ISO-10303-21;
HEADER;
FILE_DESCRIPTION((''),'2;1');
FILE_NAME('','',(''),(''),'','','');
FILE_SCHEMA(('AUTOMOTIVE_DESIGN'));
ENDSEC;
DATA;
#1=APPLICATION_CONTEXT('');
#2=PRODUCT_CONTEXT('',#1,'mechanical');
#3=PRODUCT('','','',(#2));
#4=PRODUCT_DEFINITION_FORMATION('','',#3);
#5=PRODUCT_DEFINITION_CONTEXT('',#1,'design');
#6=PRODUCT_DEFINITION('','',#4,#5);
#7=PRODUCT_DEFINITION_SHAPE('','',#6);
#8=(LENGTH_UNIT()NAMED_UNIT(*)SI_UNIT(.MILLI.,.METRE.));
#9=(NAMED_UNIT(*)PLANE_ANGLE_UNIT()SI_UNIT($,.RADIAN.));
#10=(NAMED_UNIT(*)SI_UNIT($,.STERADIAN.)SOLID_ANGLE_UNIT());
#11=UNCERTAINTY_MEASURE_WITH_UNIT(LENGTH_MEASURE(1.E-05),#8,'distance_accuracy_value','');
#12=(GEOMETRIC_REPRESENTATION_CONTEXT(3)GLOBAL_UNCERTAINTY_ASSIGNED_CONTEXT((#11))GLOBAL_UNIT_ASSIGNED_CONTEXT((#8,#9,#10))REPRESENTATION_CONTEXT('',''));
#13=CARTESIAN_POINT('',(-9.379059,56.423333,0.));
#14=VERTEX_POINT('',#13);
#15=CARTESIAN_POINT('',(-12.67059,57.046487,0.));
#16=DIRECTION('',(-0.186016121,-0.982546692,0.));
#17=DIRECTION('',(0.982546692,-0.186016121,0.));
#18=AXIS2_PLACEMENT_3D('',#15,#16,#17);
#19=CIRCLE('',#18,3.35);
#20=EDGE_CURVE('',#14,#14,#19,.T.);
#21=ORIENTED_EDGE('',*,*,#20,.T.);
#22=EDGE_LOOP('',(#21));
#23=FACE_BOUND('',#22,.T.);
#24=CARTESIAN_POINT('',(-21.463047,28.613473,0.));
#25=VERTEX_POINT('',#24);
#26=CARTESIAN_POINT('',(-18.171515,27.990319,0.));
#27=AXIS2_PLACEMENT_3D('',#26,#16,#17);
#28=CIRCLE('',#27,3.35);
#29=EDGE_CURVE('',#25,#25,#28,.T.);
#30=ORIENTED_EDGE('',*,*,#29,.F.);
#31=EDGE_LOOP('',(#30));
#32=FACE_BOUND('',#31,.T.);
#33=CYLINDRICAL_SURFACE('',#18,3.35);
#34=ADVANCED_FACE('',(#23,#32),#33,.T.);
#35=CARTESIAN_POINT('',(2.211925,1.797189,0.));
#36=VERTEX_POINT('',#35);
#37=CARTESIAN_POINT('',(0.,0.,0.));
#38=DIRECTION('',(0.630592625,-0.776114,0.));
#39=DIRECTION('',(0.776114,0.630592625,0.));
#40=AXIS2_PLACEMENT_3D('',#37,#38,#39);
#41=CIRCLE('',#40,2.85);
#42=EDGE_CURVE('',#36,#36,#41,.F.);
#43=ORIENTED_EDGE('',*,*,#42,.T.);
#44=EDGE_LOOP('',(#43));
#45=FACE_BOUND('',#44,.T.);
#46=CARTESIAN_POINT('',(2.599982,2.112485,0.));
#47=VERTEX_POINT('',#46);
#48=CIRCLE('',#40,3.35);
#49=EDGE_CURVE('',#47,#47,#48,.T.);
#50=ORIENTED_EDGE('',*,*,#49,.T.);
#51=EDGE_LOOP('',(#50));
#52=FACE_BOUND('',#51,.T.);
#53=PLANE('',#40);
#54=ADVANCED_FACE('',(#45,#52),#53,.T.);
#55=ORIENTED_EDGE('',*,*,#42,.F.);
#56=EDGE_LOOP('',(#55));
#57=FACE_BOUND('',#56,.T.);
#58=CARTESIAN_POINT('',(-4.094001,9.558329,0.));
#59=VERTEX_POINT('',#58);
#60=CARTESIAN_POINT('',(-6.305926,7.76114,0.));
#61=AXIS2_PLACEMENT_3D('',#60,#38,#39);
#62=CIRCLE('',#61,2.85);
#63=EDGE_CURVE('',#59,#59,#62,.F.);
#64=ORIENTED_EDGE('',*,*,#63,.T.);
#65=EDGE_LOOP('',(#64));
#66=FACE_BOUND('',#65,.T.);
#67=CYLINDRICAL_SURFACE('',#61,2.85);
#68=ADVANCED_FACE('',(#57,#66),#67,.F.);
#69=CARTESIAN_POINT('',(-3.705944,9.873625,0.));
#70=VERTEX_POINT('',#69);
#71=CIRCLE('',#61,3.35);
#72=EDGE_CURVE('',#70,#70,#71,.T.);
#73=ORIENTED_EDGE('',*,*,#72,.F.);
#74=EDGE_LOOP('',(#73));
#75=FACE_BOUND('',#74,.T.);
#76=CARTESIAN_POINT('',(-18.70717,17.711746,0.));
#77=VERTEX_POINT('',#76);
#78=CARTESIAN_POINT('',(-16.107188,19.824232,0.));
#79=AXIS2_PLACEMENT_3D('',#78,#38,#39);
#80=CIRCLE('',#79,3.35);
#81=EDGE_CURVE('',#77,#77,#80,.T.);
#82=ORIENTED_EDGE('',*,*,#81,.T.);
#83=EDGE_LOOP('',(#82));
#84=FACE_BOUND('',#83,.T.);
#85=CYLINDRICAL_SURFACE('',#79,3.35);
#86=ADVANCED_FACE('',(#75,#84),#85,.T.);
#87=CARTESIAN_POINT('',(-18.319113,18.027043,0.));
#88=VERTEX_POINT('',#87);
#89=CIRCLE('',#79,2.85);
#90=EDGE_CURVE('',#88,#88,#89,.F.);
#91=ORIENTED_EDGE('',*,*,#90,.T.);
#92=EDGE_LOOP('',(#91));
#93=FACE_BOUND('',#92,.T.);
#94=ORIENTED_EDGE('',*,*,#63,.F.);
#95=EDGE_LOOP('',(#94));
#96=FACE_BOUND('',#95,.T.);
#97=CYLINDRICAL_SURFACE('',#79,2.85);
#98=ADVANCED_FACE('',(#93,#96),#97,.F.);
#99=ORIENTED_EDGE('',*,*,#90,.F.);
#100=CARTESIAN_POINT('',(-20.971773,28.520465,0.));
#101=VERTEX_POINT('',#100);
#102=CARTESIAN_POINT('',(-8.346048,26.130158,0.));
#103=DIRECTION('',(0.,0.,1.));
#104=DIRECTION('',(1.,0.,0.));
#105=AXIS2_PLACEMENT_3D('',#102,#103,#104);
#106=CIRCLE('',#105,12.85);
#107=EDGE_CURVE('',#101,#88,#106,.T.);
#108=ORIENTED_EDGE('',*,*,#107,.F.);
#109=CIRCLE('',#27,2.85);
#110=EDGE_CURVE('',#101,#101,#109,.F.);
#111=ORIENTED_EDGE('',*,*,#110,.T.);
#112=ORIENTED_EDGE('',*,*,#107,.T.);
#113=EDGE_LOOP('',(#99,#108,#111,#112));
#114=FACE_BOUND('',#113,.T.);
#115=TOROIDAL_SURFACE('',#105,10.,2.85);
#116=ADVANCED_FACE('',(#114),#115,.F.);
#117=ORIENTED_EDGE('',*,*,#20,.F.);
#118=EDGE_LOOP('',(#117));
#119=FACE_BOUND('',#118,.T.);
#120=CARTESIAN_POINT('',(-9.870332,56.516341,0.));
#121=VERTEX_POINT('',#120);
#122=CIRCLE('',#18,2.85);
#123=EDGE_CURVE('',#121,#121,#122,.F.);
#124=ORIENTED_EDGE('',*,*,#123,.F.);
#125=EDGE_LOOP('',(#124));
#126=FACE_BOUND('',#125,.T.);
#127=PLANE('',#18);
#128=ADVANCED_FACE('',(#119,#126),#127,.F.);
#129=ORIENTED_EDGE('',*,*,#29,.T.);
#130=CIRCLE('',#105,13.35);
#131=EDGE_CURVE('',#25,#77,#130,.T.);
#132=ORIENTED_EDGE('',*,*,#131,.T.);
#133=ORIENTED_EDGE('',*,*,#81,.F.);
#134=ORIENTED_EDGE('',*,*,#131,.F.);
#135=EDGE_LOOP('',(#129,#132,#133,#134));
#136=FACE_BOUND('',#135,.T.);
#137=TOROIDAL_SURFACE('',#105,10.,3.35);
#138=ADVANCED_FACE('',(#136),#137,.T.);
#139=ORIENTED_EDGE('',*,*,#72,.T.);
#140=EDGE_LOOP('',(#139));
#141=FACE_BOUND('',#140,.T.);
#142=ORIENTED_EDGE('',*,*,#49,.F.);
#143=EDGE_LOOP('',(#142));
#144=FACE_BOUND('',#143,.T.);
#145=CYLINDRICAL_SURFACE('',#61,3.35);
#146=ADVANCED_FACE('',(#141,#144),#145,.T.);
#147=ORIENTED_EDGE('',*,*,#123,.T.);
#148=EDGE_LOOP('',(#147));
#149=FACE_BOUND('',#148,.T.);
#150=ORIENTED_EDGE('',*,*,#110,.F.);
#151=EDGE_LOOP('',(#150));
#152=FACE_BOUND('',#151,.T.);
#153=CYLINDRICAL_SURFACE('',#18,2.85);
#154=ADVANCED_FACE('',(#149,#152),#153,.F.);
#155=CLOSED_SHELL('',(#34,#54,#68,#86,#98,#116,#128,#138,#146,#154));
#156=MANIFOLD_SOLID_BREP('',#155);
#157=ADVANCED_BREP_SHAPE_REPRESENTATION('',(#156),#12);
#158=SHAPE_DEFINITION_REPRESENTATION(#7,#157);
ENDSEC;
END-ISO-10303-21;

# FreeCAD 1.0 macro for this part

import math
import FreeCAD as App
import Part
import Sketcher
from FreeCAD import Vector

doc = App.newDocument("Part")
body = doc.addObject("PartDesign::Body", "Body")

# Sketch on an angled plane
sketch1 = body.newObject("Sketcher::SketchObject", "Sketch")
sketch1.Placement = App.Placement(Vector(0, 0, 0), App.Rotation(Vector(-0.776114, -0.630592625, 0), Vector(0, 0, -1), Vector(0.630592625, -0.776114, 0), "ZXY"))
sketch1.addGeometry(Part.Circle(Vector(0, 0, 0), Vector(0, 0, 1), 3.4), False)
sketch1.addGeometry(Part.Circle(Vector(0, 0, 0), Vector(0, 0, 1), 2.9), False)
sketch1.addConstraint(Sketcher.Constraint("Coincident", 0, 3, -1, 1))
sketch1.addConstraint(Sketcher.Constraint("Coincident", 1, 3, -1, 1))
sketch1.addConstraint(Sketcher.Constraint("Diameter", 0, 6.7))
sketch1.addConstraint(Sketcher.Constraint("Diameter", 1, 5.7))

# Sketch on XY plane
sketch2 = body.newObject("Sketcher::SketchObject", "Sketch001")
sketch2.AttachmentSupport = (doc.getObject("XY_Plane"), [""])
sketch2.MapMode = "FlatFace"
sketch2.addGeometry(Part.LineSegment(Vector(-13, 57, 0), Vector(-18, 28, 0)), False)
sketch2.addGeometry(Part.ArcOfCircle(Part.Circle(Vector(-8, 26, 0), Vector(0, 0, 1), 10), math.radians(169), math.radians(219)), False)
sketch2.addGeometry(Part.LineSegment(Vector(-16, 20, 0), Vector(-6, 8, 0)), False)
sketch2.addGeometry(Part.LineSegment(Vector(-6, 8, 0), Vector(0, 0, 0)), False)
sketch2.addConstraint(Sketcher.Constraint("Tangent", 0, 2, 1, 1))
sketch2.addConstraint(Sketcher.Constraint("Tangent", 1, 2, 2, 1))
sketch2.addConstraint(Sketcher.Constraint("Coincident", 2, 2, 3, 1))
sketch2.addConstraint(Sketcher.Constraint("Coincident", 3, 2, -1, 1))
sketch2.addConstraint(Sketcher.Constraint("Parallel", 2, 3))
sketch2.addConstraint(Sketcher.Constraint("Radius", 1, 10.0))
sketch2.addConstraint(Sketcher.Constraint("Distance", 3, 10.0))
sketch2.addConstraint(Sketcher.Constraint("DistanceX", 1, 2, 0, 1, 3.436598))
sketch2.addConstraint(Sketcher.Constraint("DistanceX", 1, 3, -1, 1, 8.346048))
sketch2.addConstraint(Sketcher.Constraint("DistanceX", 0, 1, -1, 1, 12.67059))
sketch2.addConstraint(Sketcher.Constraint("DistanceY", -1, 1, 0, 2, 27.990319))
doc.recompute()

additivepipe = body.newObject("PartDesign::AdditivePipe", "AdditivePipe")
additivepipe.Profile = sketch1
additivepipe.Spine = (sketch2, ["Edge1", "Edge2", "Edge3", "Edge4"])

doc.recompute()
